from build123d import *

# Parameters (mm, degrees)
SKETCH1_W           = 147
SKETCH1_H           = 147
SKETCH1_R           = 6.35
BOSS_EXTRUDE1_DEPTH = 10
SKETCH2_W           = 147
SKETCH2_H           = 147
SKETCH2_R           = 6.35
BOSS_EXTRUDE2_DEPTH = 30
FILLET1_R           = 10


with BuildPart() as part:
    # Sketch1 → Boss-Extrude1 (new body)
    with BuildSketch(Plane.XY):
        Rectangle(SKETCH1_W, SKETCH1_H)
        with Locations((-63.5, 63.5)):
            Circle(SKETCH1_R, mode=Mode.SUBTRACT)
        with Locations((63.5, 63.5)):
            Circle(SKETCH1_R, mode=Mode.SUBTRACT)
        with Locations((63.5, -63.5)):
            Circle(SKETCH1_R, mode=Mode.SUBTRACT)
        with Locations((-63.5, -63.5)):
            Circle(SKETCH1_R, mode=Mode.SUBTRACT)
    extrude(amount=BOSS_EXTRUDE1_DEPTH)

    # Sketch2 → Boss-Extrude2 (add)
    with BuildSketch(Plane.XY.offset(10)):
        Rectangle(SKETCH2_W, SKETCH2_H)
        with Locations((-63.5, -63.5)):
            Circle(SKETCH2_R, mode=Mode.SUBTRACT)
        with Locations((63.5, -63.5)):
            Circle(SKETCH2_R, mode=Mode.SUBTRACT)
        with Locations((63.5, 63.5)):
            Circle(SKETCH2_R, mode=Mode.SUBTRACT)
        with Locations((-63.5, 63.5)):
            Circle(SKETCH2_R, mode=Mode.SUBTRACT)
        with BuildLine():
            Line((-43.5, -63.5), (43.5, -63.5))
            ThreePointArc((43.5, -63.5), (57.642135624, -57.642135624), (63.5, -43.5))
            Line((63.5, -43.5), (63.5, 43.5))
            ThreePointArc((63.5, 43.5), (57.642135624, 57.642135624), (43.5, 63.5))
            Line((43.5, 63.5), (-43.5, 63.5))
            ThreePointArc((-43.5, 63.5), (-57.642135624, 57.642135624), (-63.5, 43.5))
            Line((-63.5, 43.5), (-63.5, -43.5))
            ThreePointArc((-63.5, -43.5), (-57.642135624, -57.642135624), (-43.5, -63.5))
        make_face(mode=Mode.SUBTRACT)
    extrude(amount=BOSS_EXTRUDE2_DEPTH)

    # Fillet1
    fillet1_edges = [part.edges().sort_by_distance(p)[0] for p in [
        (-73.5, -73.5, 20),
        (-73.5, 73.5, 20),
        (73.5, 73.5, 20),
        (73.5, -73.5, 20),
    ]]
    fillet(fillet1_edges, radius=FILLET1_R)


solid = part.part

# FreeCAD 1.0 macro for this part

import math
import FreeCAD as App
import Part
import Sketcher


def edges_at(feature, points):
    """Names of the edges that pass closest to the given points."""
    edges = feature.Shape.Edges
    near = lambda p: min(range(len(edges)), key=lambda i: edges[i].distToShape(Part.Vertex(*p))[0])
    return sorted({f"Edge{near(p) + 1}" for p in points})


def add_polygon(sketch, points):
    """Adds a closed chain of lines whose ends are joined by coincident constraints."""
    first, n = sketch.GeometryCount, len(points)
    for a, b in zip(points, points[1:] + points[:1]):
        sketch.addGeometry(Part.LineSegment(App.Vector(*a, 0), App.Vector(*b, 0)), False)
    for i in range(n):
        sketch.addConstraint(Sketcher.Constraint("Coincident", first + i, 2, first + (i + 1) % n, 1))

doc = App.newDocument("Part")
body = doc.addObject("PartDesign::Body", "Body")

sketch1 = body.newObject("Sketcher::SketchObject", "Sketch")
sketch1.AttachmentSupport = (doc.getObject("XY_Plane"), [""])
sketch1.MapMode = "FlatFace"
add_polygon(sketch1, [(-73.5, 73.5), (-73.5, -73.5), (73.5, -73.5), (73.5, 73.5)])
sketch1.addGeometry(Part.Circle(App.Vector(-63.5, -63.5, 0), App.Vector(0, 0, 1), 6.35), False)
sketch1.addGeometry(Part.Circle(App.Vector(63.5, -63.5, 0), App.Vector(0, 0, 1), 6.35), False)
sketch1.addGeometry(Part.Circle(App.Vector(-63.5, 63.5, 0), App.Vector(0, 0, 1), 6.35), False)
sketch1.addGeometry(Part.Circle(App.Vector(63.5, 63.5, 0), App.Vector(0, 0, 1), 6.35), False)
sketch1.addConstraint([
    Sketcher.Constraint("Vertical", 0),
    Sketcher.Constraint("Horizontal", 1),
    Sketcher.Constraint("Vertical", 2),
    Sketcher.Constraint("Horizontal", 3),
    Sketcher.Constraint("Equal", 4, 5),
    Sketcher.Constraint("Equal", 5, 6),
    Sketcher.Constraint("Equal", 6, 7),
    Sketcher.Constraint("Symmetric", 5, 3, 6, 3, -1, 1),
    Sketcher.Constraint("Symmetric", 4, 3, 7, 3, -1, 1),
    Sketcher.Constraint("Symmetric", 0, 2, 2, 2, -1, 1),
    Sketcher.Constraint("Symmetric", 4, 3, 5, 3, -2),
    Sketcher.Constraint("Equal", 3, 0),
    Sketcher.Constraint("Diameter", 4, 12.7),
    Sketcher.Constraint("DistanceX", 1, 1, 1, 2, 147.0),
    Sketcher.Constraint("DistanceX", 4, 3, 5, 3, 127.0),
    Sketcher.Constraint("DistanceY", 4, 3, 6, 3, 127.0),
])
pad1 = body.newObject("PartDesign::Pad", "Pad")
pad1.Profile = sketch1
pad1.Length = 10

sketch2 = body.newObject("Sketcher::SketchObject", "Sketch001")
sketch2.AttachmentSupport = (doc.getObject("XY_Plane"), [""])
sketch2.MapMode = "FlatFace"
sketch2.AttachmentOffset = App.Placement(App.Vector(0, 0, 10), App.Rotation())
add_polygon(sketch2, [(-73.5, 73.5), (-73.5, -73.5), (73.5, -73.5), (73.5, 73.5)])
sketch2.addGeometry(Part.Circle(App.Vector(-63.5, -63.5, 0), App.Vector(0, 0, 1), 6.35), False)
sketch2.addGeometry(Part.Circle(App.Vector(63.5, -63.5, 0), App.Vector(0, 0, 1), 6.35), False)
sketch2.addGeometry(Part.Circle(App.Vector(-63.5, 63.5, 0), App.Vector(0, 0, 1), 6.35), False)
sketch2.addGeometry(Part.LineSegment(App.Vector(43.5, -63.5, 0), App.Vector(-43.5, -63.5, 0)), False)
sketch2.addGeometry(Part.ArcOfCircle(Part.Circle(App.Vector(-43.5, -43.5, 0), App.Vector(0, 0, 1), 20), math.radians(180), math.radians(270)), False)
sketch2.addGeometry(Part.LineSegment(App.Vector(-63.5, -43.5, 0), App.Vector(-63.5, 43.5, 0)), False)
sketch2.addGeometry(Part.ArcOfCircle(Part.Circle(App.Vector(-43.5, 43.5, 0), App.Vector(0, 0, 1), 20), math.radians(90), math.radians(180)), False)
sketch2.addGeometry(Part.LineSegment(App.Vector(-43.5, 63.5, 0), App.Vector(43.5, 63.5, 0)), False)
sketch2.addGeometry(Part.ArcOfCircle(Part.Circle(App.Vector(43.5, 43.5, 0), App.Vector(0, 0, 1), 20), math.radians(0), math.radians(90)), False)
sketch2.addGeometry(Part.LineSegment(App.Vector(63.5, 43.5, 0), App.Vector(63.5, -43.5, 0)), False)
sketch2.addGeometry(Part.ArcOfCircle(Part.Circle(App.Vector(43.5, -43.5, 0), App.Vector(0, 0, 1), 20), math.radians(-90), math.radians(0)), False)
sketch2.addGeometry(Part.Circle(App.Vector(63.5, 63.5, 0), App.Vector(0, 0, 1), 6.35), False)
sketch2.addConstraint([
    Sketcher.Constraint("Tangent", 7, 2, 8, 2),
    Sketcher.Constraint("Tangent", 8, 1, 9, 1),
    Sketcher.Constraint("Tangent", 9, 2, 10, 2),
    Sketcher.Constraint("Tangent", 10, 1, 11, 1),
    Sketcher.Constraint("Tangent", 11, 2, 12, 2),
    Sketcher.Constraint("Tangent", 12, 1, 13, 1),
    Sketcher.Constraint("Tangent", 13, 2, 14, 2),
    Sketcher.Constraint("Tangent", 14, 1, 7, 1),
    Sketcher.Constraint("Vertical", 0),
    Sketcher.Constraint("Horizontal", 1),
    Sketcher.Constraint("Vertical", 2),
    Sketcher.Constraint("Horizontal", 3),
    Sketcher.Constraint("Horizontal", 7),
    Sketcher.Constraint("Vertical", 9),
    Sketcher.Constraint("Horizontal", 11),
    Sketcher.Constraint("Vertical", 13),
    Sketcher.Constraint("Equal", 4, 5),
    Sketcher.Constraint("Equal", 5, 6),
    Sketcher.Constraint("Equal", 8, 10),
    Sketcher.Constraint("Equal", 10, 12),
    Sketcher.Constraint("Equal", 12, 14),
    Sketcher.Constraint("Equal", 6, 15),
    Sketcher.Constraint("Symmetric", 5, 3, 6, 3, -1, 1),
    Sketcher.Constraint("Symmetric", 8, 3, 12, 3, -1, 1),
    Sketcher.Constraint("Symmetric", 4, 3, 15, 3, -1, 1),
    Sketcher.Constraint("Symmetric", 0, 2, 2, 2, -1, 1),
    Sketcher.Constraint("Symmetric", 4, 3, 5, 3, -2),
    Sketcher.Constraint("Horizontal", 5, 3, 7, 2),
    Sketcher.Constraint("Vertical", 6, 3, 8, 1),
    Sketcher.Constraint("Equal", 3, 0),
    Sketcher.Constraint("Equal", 11, 9),
    Sketcher.Constraint("Radius", 8, 20.0),
    Sketcher.Constraint("Diameter", 4, 12.7),
    Sketcher.Constraint("DistanceX", 1, 1, 1, 2, 147.0),
    Sketcher.Constraint("DistanceX", 7, 2, 7, 1, 87.0),
])
pad2 = body.newObject("PartDesign::Pad", "Pad001")
pad2.Profile = sketch2
pad2.Length = 30
doc.recompute()

fillet = body.newObject("PartDesign::Fillet", "Fillet")
fillet.Base = (pad2, edges_at(pad2, [
    (-73.5, -73.5, 20),
    (-73.5, 73.5, 20),
    (73.5, 73.5, 20),
    (73.5, -73.5, 20),
]))
fillet.Radius = 10

doc.recompute()
